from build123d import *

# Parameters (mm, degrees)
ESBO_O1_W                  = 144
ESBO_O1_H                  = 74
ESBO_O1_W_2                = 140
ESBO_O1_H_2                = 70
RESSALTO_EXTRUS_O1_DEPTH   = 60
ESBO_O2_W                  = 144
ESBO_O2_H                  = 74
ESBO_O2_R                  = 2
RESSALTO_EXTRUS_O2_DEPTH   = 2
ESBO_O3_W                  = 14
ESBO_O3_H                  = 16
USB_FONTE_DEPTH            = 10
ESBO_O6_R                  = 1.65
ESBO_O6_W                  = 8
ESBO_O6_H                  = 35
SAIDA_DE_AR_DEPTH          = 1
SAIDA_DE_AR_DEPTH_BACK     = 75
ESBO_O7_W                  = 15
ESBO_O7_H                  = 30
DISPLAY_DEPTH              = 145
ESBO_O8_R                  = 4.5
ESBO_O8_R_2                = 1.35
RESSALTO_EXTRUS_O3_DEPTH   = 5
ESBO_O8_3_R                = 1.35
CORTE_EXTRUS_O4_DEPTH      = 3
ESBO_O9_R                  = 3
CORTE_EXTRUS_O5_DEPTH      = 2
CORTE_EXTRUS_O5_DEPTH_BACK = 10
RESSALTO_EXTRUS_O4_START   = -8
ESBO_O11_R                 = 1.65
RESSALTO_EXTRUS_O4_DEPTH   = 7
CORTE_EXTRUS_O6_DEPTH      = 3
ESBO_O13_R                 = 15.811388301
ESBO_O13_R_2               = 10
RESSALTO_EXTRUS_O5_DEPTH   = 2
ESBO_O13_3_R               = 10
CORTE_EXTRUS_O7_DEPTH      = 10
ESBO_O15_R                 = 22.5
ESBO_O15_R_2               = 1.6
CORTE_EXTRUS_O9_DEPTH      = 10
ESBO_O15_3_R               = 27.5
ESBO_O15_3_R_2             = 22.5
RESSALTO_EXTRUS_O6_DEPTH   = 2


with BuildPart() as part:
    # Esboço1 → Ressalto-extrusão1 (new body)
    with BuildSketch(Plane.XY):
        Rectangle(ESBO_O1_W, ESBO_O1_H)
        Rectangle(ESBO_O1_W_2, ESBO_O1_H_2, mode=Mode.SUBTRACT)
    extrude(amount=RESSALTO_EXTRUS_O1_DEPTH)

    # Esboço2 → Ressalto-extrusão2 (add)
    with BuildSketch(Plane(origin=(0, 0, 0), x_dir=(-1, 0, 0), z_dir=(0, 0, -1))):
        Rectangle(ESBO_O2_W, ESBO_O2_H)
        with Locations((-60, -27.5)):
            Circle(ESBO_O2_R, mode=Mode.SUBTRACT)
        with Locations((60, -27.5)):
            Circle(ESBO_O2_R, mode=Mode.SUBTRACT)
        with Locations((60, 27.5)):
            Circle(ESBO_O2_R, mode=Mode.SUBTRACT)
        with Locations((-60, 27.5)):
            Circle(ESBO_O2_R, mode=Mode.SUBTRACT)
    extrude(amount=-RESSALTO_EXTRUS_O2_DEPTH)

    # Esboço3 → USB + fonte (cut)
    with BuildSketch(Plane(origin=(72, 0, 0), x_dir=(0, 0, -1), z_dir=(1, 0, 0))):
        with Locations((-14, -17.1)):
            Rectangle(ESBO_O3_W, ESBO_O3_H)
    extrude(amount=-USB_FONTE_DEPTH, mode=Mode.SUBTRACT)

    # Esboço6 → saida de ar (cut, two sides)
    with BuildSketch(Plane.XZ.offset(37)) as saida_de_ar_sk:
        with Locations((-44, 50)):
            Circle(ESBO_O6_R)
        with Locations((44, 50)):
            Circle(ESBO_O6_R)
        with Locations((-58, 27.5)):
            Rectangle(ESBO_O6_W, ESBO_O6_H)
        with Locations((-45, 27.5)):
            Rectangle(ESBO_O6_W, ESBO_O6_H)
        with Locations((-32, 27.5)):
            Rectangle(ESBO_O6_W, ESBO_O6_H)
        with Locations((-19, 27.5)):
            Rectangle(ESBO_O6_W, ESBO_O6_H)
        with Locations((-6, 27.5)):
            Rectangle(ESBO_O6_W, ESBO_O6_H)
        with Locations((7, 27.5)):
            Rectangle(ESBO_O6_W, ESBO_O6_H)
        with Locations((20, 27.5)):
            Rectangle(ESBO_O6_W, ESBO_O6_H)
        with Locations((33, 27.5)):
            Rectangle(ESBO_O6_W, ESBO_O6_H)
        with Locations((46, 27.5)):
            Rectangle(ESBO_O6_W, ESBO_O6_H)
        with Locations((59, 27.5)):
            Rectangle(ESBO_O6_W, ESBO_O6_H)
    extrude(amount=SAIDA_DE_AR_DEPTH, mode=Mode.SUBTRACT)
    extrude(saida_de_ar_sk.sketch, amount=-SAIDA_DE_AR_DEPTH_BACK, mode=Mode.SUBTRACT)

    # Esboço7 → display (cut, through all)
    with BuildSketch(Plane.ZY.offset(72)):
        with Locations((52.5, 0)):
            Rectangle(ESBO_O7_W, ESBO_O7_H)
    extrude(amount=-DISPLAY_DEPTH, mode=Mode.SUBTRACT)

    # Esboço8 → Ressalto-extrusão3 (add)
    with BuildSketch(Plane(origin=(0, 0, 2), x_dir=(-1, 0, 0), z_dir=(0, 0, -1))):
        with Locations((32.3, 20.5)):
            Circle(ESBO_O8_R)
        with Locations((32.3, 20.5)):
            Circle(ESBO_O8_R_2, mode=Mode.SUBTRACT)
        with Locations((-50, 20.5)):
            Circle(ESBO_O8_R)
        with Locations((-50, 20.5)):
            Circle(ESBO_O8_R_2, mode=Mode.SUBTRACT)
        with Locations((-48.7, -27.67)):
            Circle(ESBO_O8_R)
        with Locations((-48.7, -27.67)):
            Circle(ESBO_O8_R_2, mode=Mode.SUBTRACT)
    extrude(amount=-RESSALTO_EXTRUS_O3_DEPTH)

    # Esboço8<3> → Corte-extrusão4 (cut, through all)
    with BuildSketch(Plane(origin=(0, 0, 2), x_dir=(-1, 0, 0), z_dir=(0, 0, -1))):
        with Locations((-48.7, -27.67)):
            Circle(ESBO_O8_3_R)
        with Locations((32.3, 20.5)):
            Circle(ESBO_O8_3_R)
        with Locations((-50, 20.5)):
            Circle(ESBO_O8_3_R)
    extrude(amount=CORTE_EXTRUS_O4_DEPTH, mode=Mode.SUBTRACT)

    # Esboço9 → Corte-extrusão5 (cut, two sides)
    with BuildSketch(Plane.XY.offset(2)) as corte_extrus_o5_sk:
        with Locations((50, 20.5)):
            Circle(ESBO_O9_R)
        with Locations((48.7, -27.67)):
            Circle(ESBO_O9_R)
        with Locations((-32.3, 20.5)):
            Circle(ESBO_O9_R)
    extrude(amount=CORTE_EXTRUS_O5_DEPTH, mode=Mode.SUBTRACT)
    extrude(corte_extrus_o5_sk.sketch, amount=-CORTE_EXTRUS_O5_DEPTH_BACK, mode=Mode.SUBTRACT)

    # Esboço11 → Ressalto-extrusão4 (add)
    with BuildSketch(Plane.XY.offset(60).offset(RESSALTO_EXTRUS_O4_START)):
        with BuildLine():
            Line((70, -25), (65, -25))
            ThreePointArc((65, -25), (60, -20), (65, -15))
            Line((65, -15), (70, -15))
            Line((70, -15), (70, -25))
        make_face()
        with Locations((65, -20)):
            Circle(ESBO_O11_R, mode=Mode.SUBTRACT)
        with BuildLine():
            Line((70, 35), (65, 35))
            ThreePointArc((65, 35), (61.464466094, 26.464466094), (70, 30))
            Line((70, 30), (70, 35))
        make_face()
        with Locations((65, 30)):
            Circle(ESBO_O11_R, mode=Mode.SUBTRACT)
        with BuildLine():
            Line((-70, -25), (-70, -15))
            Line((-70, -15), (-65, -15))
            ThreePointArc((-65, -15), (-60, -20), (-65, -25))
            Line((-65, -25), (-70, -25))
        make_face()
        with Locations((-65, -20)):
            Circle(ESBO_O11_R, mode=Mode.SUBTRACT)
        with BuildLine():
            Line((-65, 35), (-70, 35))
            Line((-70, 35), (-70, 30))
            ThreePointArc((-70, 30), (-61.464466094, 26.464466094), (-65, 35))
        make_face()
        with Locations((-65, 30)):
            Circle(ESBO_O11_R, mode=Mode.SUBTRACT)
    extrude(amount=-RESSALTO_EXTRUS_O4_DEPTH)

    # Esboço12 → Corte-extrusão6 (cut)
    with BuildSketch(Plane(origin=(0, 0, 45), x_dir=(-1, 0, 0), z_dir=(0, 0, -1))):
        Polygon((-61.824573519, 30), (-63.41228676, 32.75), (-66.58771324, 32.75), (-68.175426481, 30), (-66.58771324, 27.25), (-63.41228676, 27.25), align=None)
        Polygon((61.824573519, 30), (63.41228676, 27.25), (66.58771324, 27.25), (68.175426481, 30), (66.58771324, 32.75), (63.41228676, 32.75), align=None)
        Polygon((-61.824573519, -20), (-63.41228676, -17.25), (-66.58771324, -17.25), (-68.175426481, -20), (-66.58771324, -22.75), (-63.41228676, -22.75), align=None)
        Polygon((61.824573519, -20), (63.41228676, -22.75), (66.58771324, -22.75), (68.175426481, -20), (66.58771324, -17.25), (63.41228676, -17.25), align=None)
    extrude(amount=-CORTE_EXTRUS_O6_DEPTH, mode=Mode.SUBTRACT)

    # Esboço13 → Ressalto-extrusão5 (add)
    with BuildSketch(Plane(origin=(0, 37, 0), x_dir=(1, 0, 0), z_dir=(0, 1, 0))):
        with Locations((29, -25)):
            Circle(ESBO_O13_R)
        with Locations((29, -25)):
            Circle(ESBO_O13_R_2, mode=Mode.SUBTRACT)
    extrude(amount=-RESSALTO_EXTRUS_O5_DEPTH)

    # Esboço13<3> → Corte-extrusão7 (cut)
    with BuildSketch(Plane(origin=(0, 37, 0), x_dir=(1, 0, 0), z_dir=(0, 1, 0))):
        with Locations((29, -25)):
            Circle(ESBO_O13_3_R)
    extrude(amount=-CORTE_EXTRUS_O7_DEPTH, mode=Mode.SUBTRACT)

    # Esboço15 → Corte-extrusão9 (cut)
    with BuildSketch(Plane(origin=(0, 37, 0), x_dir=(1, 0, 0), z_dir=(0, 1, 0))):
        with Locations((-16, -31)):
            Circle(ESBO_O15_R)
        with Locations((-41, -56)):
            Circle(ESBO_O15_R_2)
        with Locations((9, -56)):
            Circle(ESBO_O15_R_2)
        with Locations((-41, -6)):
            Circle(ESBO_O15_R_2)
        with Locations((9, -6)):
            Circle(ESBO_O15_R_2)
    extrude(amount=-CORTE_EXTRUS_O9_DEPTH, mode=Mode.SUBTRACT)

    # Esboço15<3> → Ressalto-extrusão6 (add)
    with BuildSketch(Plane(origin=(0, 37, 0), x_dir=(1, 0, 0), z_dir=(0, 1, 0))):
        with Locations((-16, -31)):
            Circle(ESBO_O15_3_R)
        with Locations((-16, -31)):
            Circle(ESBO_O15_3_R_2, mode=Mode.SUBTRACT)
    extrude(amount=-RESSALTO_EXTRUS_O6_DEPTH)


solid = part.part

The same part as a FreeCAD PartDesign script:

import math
import FreeCAD as App
import Part
import Sketcher

V = App.Vector
Q = App.Units.Quantity

doc = App.newDocument("Part")
body = doc.addObject("PartDesign::Body", "Body")

# Sketch on XY plane
sketch1 = body.newObject("Sketcher::SketchObject", "Sketch")
sketch1.AttachmentSupport = (doc.getObject("XY_Plane"), [""])
sketch1.MapMode = "FlatFace"
sketch1.addGeometry(Part.LineSegment(V(-72, 37, 0), V(-72, -37, 0)), False)
sketch1.addGeometry(Part.LineSegment(V(-72, -37, 0), V(72, -37, 0)), False)
sketch1.addGeometry(Part.LineSegment(V(72, -37, 0), V(72, 37, 0)), False)
sketch1.addGeometry(Part.LineSegment(V(72, 37, 0), V(-72, 37, 0)), False)
sketch1.addGeometry(Part.LineSegment(V(70, -35, 0), V(-70, -35, 0)), False)
sketch1.addGeometry(Part.LineSegment(V(-70, -35, 0), V(-70, 35, 0)), False)
sketch1.addGeometry(Part.LineSegment(V(-70, 35, 0), V(70, 35, 0)), False)
sketch1.addGeometry(Part.LineSegment(V(70, 35, 0), V(70, -35, 0)), False)
sketch1.addConstraint(Sketcher.Constraint("Coincident", 0, 2, 1, 1))
sketch1.addConstraint(Sketcher.Constraint("Coincident", 1, 2, 2, 1))
sketch1.addConstraint(Sketcher.Constraint("Coincident", 2, 2, 3, 1))
sketch1.addConstraint(Sketcher.Constraint("Coincident", 3, 2, 0, 1))
sketch1.addConstraint(Sketcher.Constraint("Coincident", 4, 2, 5, 1))
sketch1.addConstraint(Sketcher.Constraint("Coincident", 5, 2, 6, 1))
sketch1.addConstraint(Sketcher.Constraint("Coincident", 6, 2, 7, 1))
sketch1.addConstraint(Sketcher.Constraint("Coincident", 7, 2, 4, 1))
sketch1.addConstraint(Sketcher.Constraint("Vertical", 0))
sketch1.addConstraint(Sketcher.Constraint("Horizontal", 1))
sketch1.addConstraint(Sketcher.Constraint("Vertical", 2))
sketch1.addConstraint(Sketcher.Constraint("Horizontal", 3))
sketch1.addConstraint(Sketcher.Constraint("Horizontal", 4))
sketch1.addConstraint(Sketcher.Constraint("Vertical", 5))
sketch1.addConstraint(Sketcher.Constraint("Horizontal", 6))
sketch1.addConstraint(Sketcher.Constraint("Vertical", 7))
sketch1.addConstraint(Sketcher.Constraint("Symmetric", 0, 2, 2, 2, -1, 1))
sketch1.addConstraint(Sketcher.Constraint("Symmetric", 4, 2, 6, 2, -1, 1))
sketch1.addConstraint(Sketcher.Constraint("DistanceX", 1, 1, 1, 2, 144.0))
sketch1.addConstraint(Sketcher.Constraint("DistanceX", 4, 2, 4, 1, 140.0))
sketch1.addConstraint(Sketcher.Constraint("DistanceY", 0, 2, 0, 1, 74.0))
sketch1.addConstraint(Sketcher.Constraint("DistanceY", 5, 1, 5, 2, 70.0))
pad1 = body.newObject("PartDesign::Pad", "Pad")
pad1.Profile = sketch1
pad1.Length = 60

# Sketch on XY plane
sketch2 = body.newObject("Sketcher::SketchObject", "Sketch001")
sketch2.AttachmentSupport = (doc.getObject("XY_Plane"), [""])
sketch2.MapMode = "FlatFace"
sketch2.addGeometry(Part.LineSegment(V(72, 37, 0), V(72, -37, 0)), False)
sketch2.addGeometry(Part.LineSegment(V(72, -37, 0), V(-72, -37, 0)), False)
sketch2.addGeometry(Part.LineSegment(V(-72, -37, 0), V(-72, 37, 0)), False)
sketch2.addGeometry(Part.LineSegment(V(-72, 37, 0), V(72, 37, 0)), False)
sketch2.addGeometry(Part.Circle(V(60, -27.5, 0), V(0, 0, 1), 2), False)
sketch2.addGeometry(Part.Circle(V(-60, -27.5, 0), V(0, 0, 1), 2), False)
sketch2.addGeometry(Part.Circle(V(60, 27.5, 0), V(0, 0, 1), 2), False)
sketch2.addGeometry(Part.Circle(V(-60, 27.5, 0), V(0, 0, 1), 2), False)
sketch2.addConstraint(Sketcher.Constraint("Coincident", 0, 2, 1, 1))
sketch2.addConstraint(Sketcher.Constraint("Coincident", 1, 2, 2, 1))
sketch2.addConstraint(Sketcher.Constraint("Coincident", 2, 2, 3, 1))
sketch2.addConstraint(Sketcher.Constraint("Coincident", 3, 2, 0, 1))
sketch2.addConstraint(Sketcher.Constraint("Vertical", 0))
sketch2.addConstraint(Sketcher.Constraint("Horizontal", 1))
sketch2.addConstraint(Sketcher.Constraint("Vertical", 2))
sketch2.addConstraint(Sketcher.Constraint("Horizontal", 3))
sketch2.addConstraint(Sketcher.Constraint("Equal", 4, 5))
sketch2.addConstraint(Sketcher.Constraint("Equal", 5, 6))
sketch2.addConstraint(Sketcher.Constraint("Equal", 6, 7))
sketch2.addConstraint(Sketcher.Constraint("Symmetric", 5, 3, 6, 3, -1, 1))
sketch2.addConstraint(Sketcher.Constraint("Symmetric", 4, 3, 7, 3, -1, 1))
sketch2.addConstraint(Sketcher.Constraint("Symmetric", 0, 2, 2, 2, -1, 1))
sketch2.addConstraint(Sketcher.Constraint("Symmetric", 4, 3, 5, 3, -2))
sketch2.addConstraint(Sketcher.Constraint("Diameter", 4, 4.0))
sketch2.addConstraint(Sketcher.Constraint("DistanceX", 1, 2, 1, 1, 144.0))
sketch2.addConstraint(Sketcher.Constraint("DistanceY", 0, 2, 0, 1, 74.0))
sketch2.addConstraint(Sketcher.Constraint("DistanceX", -1, 1, 4, 3, 60.0))
sketch2.addConstraint(Sketcher.Constraint("DistanceY", 4, 3, 6, 3, 55.0))
pad2 = body.newObject("PartDesign::Pad", "Pad001")
pad2.Profile = sketch2
pad2.Length = 2

# Sketch on YZ plane
sketch3 = body.newObject("Sketcher::SketchObject", "Sketch002")
sketch3.AttachmentSupport = (doc.getObject("YZ_Plane"), [""])
sketch3.MapMode = "FlatFace"
sketch3.AttachmentOffset = App.Placement(V(0, 0, 72), App.Rotation())
sketch3.addGeometry(Part.LineSegment(V(-9, 21, 0), V(-25, 21, 0)), False)
sketch3.addGeometry(Part.LineSegment(V(-25, 21, 0), V(-25, 7, 0)), False)
sketch3.addGeometry(Part.LineSegment(V(-25, 7, 0), V(-9, 7, 0)), False)
sketch3.addGeometry(Part.LineSegment(V(-9, 7, 0), V(-9, 21, 0)), False)
sketch3.addConstraint(Sketcher.Constraint("Coincident", 0, 2, 1, 1))
sketch3.addConstraint(Sketcher.Constraint("Coincident", 1, 2, 2, 1))
sketch3.addConstraint(Sketcher.Constraint("Coincident", 2, 2, 3, 1))
sketch3.addConstraint(Sketcher.Constraint("Coincident", 3, 2, 0, 1))
sketch3.addConstraint(Sketcher.Constraint("Horizontal", 0))
sketch3.addConstraint(Sketcher.Constraint("Vertical", 1))
sketch3.addConstraint(Sketcher.Constraint("Horizontal", 2))
sketch3.addConstraint(Sketcher.Constraint("Vertical", 3))
sketch3.addConstraint(Sketcher.Constraint("DistanceX", 0, 2, 0, 1, 16.0))
sketch3.addConstraint(Sketcher.Constraint("DistanceY", 1, 2, 1, 1, 14.0))
sketch3.addConstraint(Sketcher.Constraint("DistanceY", -1, 1, 0, 2, 21.0))
sketch3.addConstraint(Sketcher.Constraint("DistanceX", 0, 2, -1, 1, 25.1))
pocket1 = body.newObject("PartDesign::Pocket", "Pocket")
pocket1.Profile = sketch3
pocket1.Length = 10

# Sketch on XZ plane
sketch4 = body.newObject("Sketcher::SketchObject", "Sketch003")
sketch4.AttachmentSupport = (doc.getObject("XZ_Plane"), [""])
sketch4.MapMode = "FlatFace"
sketch4.AttachmentOffset = App.Placement(V(0, 0, 37), App.Rotation())
sketch4.addGeometry(Part.Circle(V(-44, 50, 0), V(0, 0, 1), 1.6), False)
sketch4.addGeometry(Part.Circle(V(44, 50, 0), V(0, 0, 1), 1.6), False)
sketch4.addGeometry(Part.LineSegment(V(-62, 45, 0), V(-62, 10, 0)), False)
sketch4.addGeometry(Part.LineSegment(V(-62, 10, 0), V(-54, 10, 0)), False)
sketch4.addGeometry(Part.LineSegment(V(-54, 10, 0), V(-54, 45, 0)), False)
sketch4.addGeometry(Part.LineSegment(V(-54, 45, 0), V(-62, 45, 0)), False)
sketch4.addGeometry(Part.LineSegment(V(-49, 45, 0), V(-49, 10, 0)), False)
sketch4.addGeometry(Part.LineSegment(V(-49, 10, 0), V(-41, 10, 0)), False)
sketch4.addGeometry(Part.LineSegment(V(-41, 10, 0), V(-41, 45, 0)), False)
sketch4.addGeometry(Part.LineSegment(V(-41, 45, 0), V(-49, 45, 0)), False)
sketch4.addGeometry(Part.LineSegment(V(-36, 45, 0), V(-36, 10, 0)), False)
sketch4.addGeometry(Part.LineSegment(V(-36, 10, 0), V(-28, 10, 0)), False)
sketch4.addGeometry(Part.LineSegment(V(-28, 10, 0), V(-28, 45, 0)), False)
sketch4.addGeometry(Part.LineSegment(V(-28, 45, 0), V(-36, 45, 0)), False)
sketch4.addGeometry(Part.LineSegment(V(-23, 45, 0), V(-23, 10, 0)), False)
sketch4.addGeometry(Part.LineSegment(V(-23, 10, 0), V(-15, 10, 0)), False)
sketch4.addGeometry(Part.LineSegment(V(-15, 10, 0), V(-15, 45, 0)), False)
sketch4.addGeometry(Part.LineSegment(V(-15, 45, 0), V(-23, 45, 0)), False)
sketch4.addGeometry(Part.LineSegment(V(-10, 45, 0), V(-10, 10, 0)), False)
sketch4.addGeometry(Part.LineSegment(V(-10, 10, 0), V(-2, 10, 0)), False)
sketch4.addGeometry(Part.LineSegment(V(-2, 10, 0), V(-2, 45, 0)), False)
sketch4.addGeometry(Part.LineSegment(V(-2, 45, 0), V(-10, 45, 0)), False)
sketch4.addGeometry(Part.LineSegment(V(3, 45, 0), V(3, 10, 0)), False)
sketch4.addGeometry(Part.LineSegment(V(3, 10, 0), V(11, 10, 0)), False)
sketch4.addGeometry(Part.LineSegment(V(11, 10, 0), V(11, 45, 0)), False)
sketch4.addGeometry(Part.LineSegment(V(11, 45, 0), V(3, 45, 0)), False)
sketch4.addGeometry(Part.LineSegment(V(16, 45, 0), V(16, 10, 0)), False)
sketch4.addGeometry(Part.LineSegment(V(16, 10, 0), V(24, 10, 0)), False)
sketch4.addGeometry(Part.LineSegment(V(24, 10, 0), V(24, 45, 0)), False)
sketch4.addGeometry(Part.LineSegment(V(24, 45, 0), V(16, 45, 0)), False)
sketch4.addGeometry(Part.LineSegment(V(29, 45, 0), V(29, 10, 0)), False)
sketch4.addGeometry(Part.LineSegment(V(29, 10, 0), V(37, 10, 0)), False)
sketch4.addGeometry(Part.LineSegment(V(37, 10, 0), V(37, 45, 0)), False)
sketch4.addGeometry(Part.LineSegment(V(37, 45, 0), V(29, 45, 0)), False)
sketch4.addGeometry(Part.LineSegment(V(42, 45, 0), V(42, 10, 0)), False)
sketch4.addGeometry(Part.LineSegment(V(42, 10, 0), V(50, 10, 0)), False)
sketch4.addGeometry(Part.LineSegment(V(50, 10, 0), V(50, 45, 0)), False)
sketch4.addGeometry(Part.LineSegment(V(50, 45, 0), V(42, 45, 0)), False)
sketch4.addGeometry(Part.LineSegment(V(55, 45, 0), V(55, 10, 0)), False)
sketch4.addGeometry(Part.LineSegment(V(55, 10, 0), V(63, 10, 0)), False)
sketch4.addGeometry(Part.LineSegment(V(63, 10, 0), V(63, 45, 0)), False)
sketch4.addGeometry(Part.LineSegment(V(63, 45, 0), V(55, 45, 0)), False)
sketch4.addConstraint(Sketcher.Constraint("Coincident", 2, 2, 3, 1))
sketch4.addConstraint(Sketcher.Constraint("Coincident", 3, 2, 4, 1))
sketch4.addConstraint(Sketcher.Constraint("Coincident", 4, 2, 5, 1))
sketch4.addConstraint(Sketcher.Constraint("Coincident", 5, 2, 2, 1))
sketch4.addConstraint(Sketcher.Constraint("Coincident", 6, 2, 7, 1))
sketch4.addConstraint(Sketcher.Constraint("Coincident", 7, 2, 8, 1))
sketch4.addConstraint(Sketcher.Constraint("Coincident", 8, 2, 9, 1))
sketch4.addConstraint(Sketcher.Constraint("Coincident", 9, 2, 6, 1))
sketch4.addConstraint(Sketcher.Constraint("Coincident", 10, 2, 11, 1))
sketch4.addConstraint(Sketcher.Constraint("Coincident", 11, 2, 12, 1))
sketch4.addConstraint(Sketcher.Constraint("Coincident", 12, 2, 13, 1))
sketch4.addConstraint(Sketcher.Constraint("Coincident", 13, 2, 10, 1))
sketch4.addConstraint(Sketcher.Constraint("Coincident", 14, 2, 15, 1))
sketch4.addConstraint(Sketcher.Constraint("Coincident", 15, 2, 16, 1))
sketch4.addConstraint(Sketcher.Constraint("Coincident", 16, 2, 17, 1))
sketch4.addConstraint(Sketcher.Constraint("Coincident", 17, 2, 14, 1))
sketch4.addConstraint(Sketcher.Constraint("Coincident", 18, 2, 19, 1))
sketch4.addConstraint(Sketcher.Constraint("Coincident", 19, 2, 20, 1))
sketch4.addConstraint(Sketcher.Constraint("Coincident", 20, 2, 21, 1))
sketch4.addConstraint(Sketcher.Constraint("Coincident", 21, 2, 18, 1))
sketch4.addConstraint(Sketcher.Constraint("Coincident", 22, 2, 23, 1))
sketch4.addConstraint(Sketcher.Constraint("Coincident", 23, 2, 24, 1))
sketch4.addConstraint(Sketcher.Constraint("Coincident", 24, 2, 25, 1))
sketch4.addConstraint(Sketcher.Constraint("Coincident", 25, 2, 22, 1))
sketch4.addConstraint(Sketcher.Constraint("Coincident", 26, 2, 27, 1))
sketch4.addConstraint(Sketcher.Constraint("Coincident", 27, 2, 28, 1))
sketch4.addConstraint(Sketcher.Constraint("Coincident", 28, 2, 29, 1))
sketch4.addConstraint(Sketcher.Constraint("Coincident", 29, 2, 26, 1))
sketch4.addConstraint(Sketcher.Constraint("Coincident", 30, 2, 31, 1))
sketch4.addConstraint(Sketcher.Constraint("Coincident", 31, 2, 32, 1))
sketch4.addConstraint(Sketcher.Constraint("Coincident", 32, 2, 33, 1))
sketch4.addConstraint(Sketcher.Constraint("Coincident", 33, 2, 30, 1))
sketch4.addConstraint(Sketcher.Constraint("Coincident", 34, 2, 35, 1))
sketch4.addConstraint(Sketcher.Constraint("Coincident", 35, 2, 36, 1))
sketch4.addConstraint(Sketcher.Constraint("Coincident", 36, 2, 37, 1))
sketch4.addConstraint(Sketcher.Constraint("Coincident", 37, 2, 34, 1))
sketch4.addConstraint(Sketcher.Constraint("Coincident", 38, 2, 39, 1))
sketch4.addConstraint(Sketcher.Constraint("Coincident", 39, 2, 40, 1))
sketch4.addConstraint(Sketcher.Constraint("Coincident", 40, 2, 41, 1))
sketch4.addConstraint(Sketcher.Constraint("Coincident", 41, 2, 38, 1))
sketch4.addConstraint(Sketcher.Constraint("Vertical", 2))
sketch4.addConstraint(Sketcher.Constraint("Horizontal", 3))
sketch4.addConstraint(Sketcher.Constraint("Vertical", 4))
sketch4.addConstraint(Sketcher.Constraint("Horizontal", 5))
sketch4.addConstraint(Sketcher.Constraint("Vertical", 6))
sketch4.addConstraint(Sketcher.Constraint("Horizontal", 7))
sketch4.addConstraint(Sketcher.Constraint("Vertical", 8))
sketch4.addConstraint(Sketcher.Constraint("Horizontal", 9))
sketch4.addConstraint(Sketcher.Constraint("Vertical", 10))
sketch4.addConstraint(Sketcher.Constraint("Horizontal", 11))
sketch4.addConstraint(Sketcher.Constraint("Vertical", 12))
sketch4.addConstraint(Sketcher.Constraint("Horizontal", 13))
sketch4.addConstraint(Sketcher.Constraint("Vertical", 14))
sketch4.addConstraint(Sketcher.Constraint("Horizontal", 15))
sketch4.addConstraint(Sketcher.Constraint("Vertical", 16))
sketch4.addConstraint(Sketcher.Constraint("Horizontal", 17))
sketch4.addConstraint(Sketcher.Constraint("Vertical", 18))
sketch4.addConstraint(Sketcher.Constraint("Horizontal", 19))
sketch4.addConstraint(Sketcher.Constraint("Vertical", 20))
sketch4.addConstraint(Sketcher.Constraint("Horizontal", 21))
sketch4.addConstraint(Sketcher.Constraint("Vertical", 22))
sketch4.addConstraint(Sketcher.Constraint("Horizontal", 23))
sketch4.addConstraint(Sketcher.Constraint("Vertical", 24))
sketch4.addConstraint(Sketcher.Constraint("Horizontal", 25))
sketch4.addConstraint(Sketcher.Constraint("Vertical", 26))
sketch4.addConstraint(Sketcher.Constraint("Horizontal", 27))
sketch4.addConstraint(Sketcher.Constraint("Vertical", 28))
sketch4.addConstraint(Sketcher.Constraint("Horizontal", 29))
sketch4.addConstraint(Sketcher.Constraint("Vertical", 30))
sketch4.addConstraint(Sketcher.Constraint("Horizontal", 31))
sketch4.addConstraint(Sketcher.Constraint("Vertical", 32))
sketch4.addConstraint(Sketcher.Constraint("Horizontal", 33))
sketch4.addConstraint(Sketcher.Constraint("Vertical", 34))
sketch4.addConstraint(Sketcher.Constraint("Horizontal", 35))
sketch4.addConstraint(Sketcher.Constraint("Vertical", 36))
sketch4.addConstraint(Sketcher.Constraint("Horizontal", 37))
sketch4.addConstraint(Sketcher.Constraint("Vertical", 38))
sketch4.addConstraint(Sketcher.Constraint("Horizontal", 39))
sketch4.addConstraint(Sketcher.Constraint("Vertical", 40))
sketch4.addConstraint(Sketcher.Constraint("Horizontal", 41))
sketch4.addConstraint(Sketcher.Constraint("Equal", 0, 1))
sketch4.addConstraint(Sketcher.Constraint("Symmetric", 0, 3, 1, 3, -2))
sketch4.addConstraint(Sketcher.Constraint("Horizontal", 3, 2, 6, 2))
sketch4.addConstraint(Sketcher.Constraint("Horizontal", 5, 2, 8, 2))
sketch4.addConstraint(Sketcher.Constraint("Horizontal", 7, 2, 10, 2))
sketch4.addConstraint(Sketcher.Constraint("Horizontal", 9, 2, 12, 2))
sketch4.addConstraint(Sketcher.Constraint("Horizontal", 11, 2, 14, 2))
sketch4.addConstraint(Sketcher.Constraint("Horizontal", 13, 2, 16, 2))
sketch4.addConstraint(Sketcher.Constraint("Horizontal", 15, 2, 18, 2))
sketch4.addConstraint(Sketcher.Constraint("Horizontal", 17, 2, 20, 2))
sketch4.addConstraint(Sketcher.Constraint("Horizontal", 19, 2, 22, 2))
sketch4.addConstraint(Sketcher.Constraint("Horizontal", 21, 2, 24, 2))
sketch4.addConstraint(Sketcher.Constraint("Horizontal", 23, 2, 26, 2))
sketch4.addConstraint(Sketcher.Constraint("Horizontal", 25, 2, 28, 2))
sketch4.addConstraint(Sketcher.Constraint("Horizontal", 27, 2, 30, 2))
sketch4.addConstraint(Sketcher.Constraint("Horizontal", 29, 2, 32, 2))
sketch4.addConstraint(Sketcher.Constraint("Horizontal", 31, 2, 34, 2))
sketch4.addConstraint(Sketcher.Constraint("Horizontal", 33, 2, 36, 2))
sketch4.addConstraint(Sketcher.Constraint("Horizontal", 35, 2, 38, 2))
sketch4.addConstraint(Sketcher.Constraint("Horizontal", 37, 2, 40, 2))
sketch4.addConstraint(Sketcher.Constraint("Equal", 5, 7))
sketch4.addConstraint(Sketcher.Constraint("Equal", 9, 11))
sketch4.addConstraint(Sketcher.Constraint("Equal", 13, 15))
sketch4.addConstraint(Sketcher.Constraint("Equal", 17, 19))
sketch4.addConstraint(Sketcher.Constraint("Equal", 21, 23))
sketch4.addConstraint(Sketcher.Constraint("Equal", 25, 27))
sketch4.addConstraint(Sketcher.Constraint("Equal", 29, 31))
sketch4.addConstraint(Sketcher.Constraint("Equal", 33, 35))
sketch4.addConstraint(Sketcher.Constraint("Equal", 37, 39))
sketch4.addConstraint(Sketcher.Constraint("Diameter", 0, 3.3))
sketch4.addConstraint(Sketcher.Constraint("DistanceX", 3, 1, 3, 2, 8.0))
sketch4.addConstraint(Sketcher.Constraint("DistanceY", 2, 2, 2, 1, 35.0))
sketch4.addConstraint(Sketcher.Constraint("DistanceX", 0, 3, -1, 1, 44.0))
sketch4.addConstraint(Sketcher.Constraint("DistanceY", -1, 1, 0, 3, 50.0))
sketch4.addConstraint(Sketcher.Constraint("DistanceX", 2, 2, -1, 1, 62.0))
sketch4.addConstraint(Sketcher.Constraint("DistanceY", -1, 1, 2, 2, 10.0))
sketch4.addConstraint(Sketcher.Constraint("DistanceX", 6, 2, -1, 1, 49.0))
sketch4.addConstraint(Sketcher.Constraint("DistanceX", 10, 2, -1, 1, 36.0))
sketch4.addConstraint(Sketcher.Constraint("DistanceX", 14, 2, -1, 1, 23.0))
sketch4.addConstraint(Sketcher.Constraint("DistanceX", 18, 2, -1, 1, 10.0))
sketch4.addConstraint(Sketcher.Constraint("DistanceX", -1, 1, 22, 2, 3.0))
sketch4.addConstraint(Sketcher.Constraint("DistanceX", -1, 1, 26, 2, 16.0))
sketch4.addConstraint(Sketcher.Constraint("DistanceX", -1, 1, 30, 2, 29.0))
sketch4.addConstraint(Sketcher.Constraint("DistanceX", -1, 1, 34, 2, 42.0))
sketch4.addConstraint(Sketcher.Constraint("DistanceX", -1, 1, 38, 2, 55.0))
pocket2 = body.newObject("PartDesign::Pocket", "Pocket001")
pocket2.Profile = sketch4
pocket2.Type = "ThroughAll"
pocket2.Midplane = True

# Sketch on YZ plane
sketch5 = body.newObject("Sketcher::SketchObject", "Sketch004")
sketch5.AttachmentSupport = (doc.getObject("YZ_Plane"), [""])
sketch5.MapMode = "FlatFace"
sketch5.AttachmentOffset = App.Placement(V(0, 0, -72), App.Rotation())
sketch5.addGeometry(Part.LineSegment(V(15, 45, 0), V(-15, 45, 0)), False)
sketch5.addGeometry(Part.LineSegment(V(-15, 45, 0), V(-15, 60, 0)), False)
sketch5.addGeometry(Part.LineSegment(V(-15, 60, 0), V(15, 60, 0)), False)
sketch5.addGeometry(Part.LineSegment(V(15, 60, 0), V(15, 45, 0)), False)
sketch5.addConstraint(Sketcher.Constraint("Coincident", 0, 2, 1, 1))
sketch5.addConstraint(Sketcher.Constraint("Coincident", 1, 2, 2, 1))
sketch5.addConstraint(Sketcher.Constraint("Coincident", 2, 2, 3, 1))
sketch5.addConstraint(Sketcher.Constraint("Coincident", 3, 2, 0, 1))
sketch5.addConstraint(Sketcher.Constraint("Horizontal", 0))
sketch5.addConstraint(Sketcher.Constraint("Vertical", 1))
sketch5.addConstraint(Sketcher.Constraint("Horizontal", 2))
sketch5.addConstraint(Sketcher.Constraint("Vertical", 3))
sketch5.addConstraint(Sketcher.Constraint("DistanceX", 0, 2, 0, 1, 30.0))
sketch5.addConstraint(Sketcher.Constraint("DistanceY", 1, 1, 1, 2, 15.0))
sketch5.addConstraint(Sketcher.Constraint("DistanceX", 0, 2, -1, 1, 15.0))
sketch5.addConstraint(Sketcher.Constraint("DistanceY", -1, 1, 0, 2, 45.0))
pocket3 = body.newObject("PartDesign::Pocket", "Pocket002")
pocket3.Profile = sketch5
pocket3.Type = "ThroughAll"
pocket3.Reversed = True

# Sketch on XY plane
sketch6 = body.newObject("Sketcher::SketchObject", "Sketch005")
sketch6.AttachmentSupport = (doc.getObject("XY_Plane"), [""])
sketch6.MapMode = "FlatFace"
sketch6.AttachmentOffset = App.Placement(V(0, 0, 2), App.Rotation())
sketch6.addGeometry(Part.Circle(V(-32.3, 20.5, 0), V(0, 0, 1), 4.5), False)
sketch6.addGeometry(Part.Circle(V(-32.3, 20.5, 0), V(0, 0, 1), 1.4), False)
sketch6.addGeometry(Part.Circle(V(50, 20.5, 0), V(0, 0, 1), 4.5), False)
sketch6.addGeometry(Part.Circle(V(50, 20.5, 0), V(0, 0, 1), 1.4), False)
sketch6.addGeometry(Part.Circle(V(48.7, -27.7, 0), V(0, 0, 1), 4.5), False)
sketch6.addGeometry(Part.Circle(V(48.7, -27.7, 0), V(0, 0, 1), 1.4), False)
sketch6.addConstraint(Sketcher.Constraint("Coincident", 1, 3, 0, 3))
sketch6.addConstraint(Sketcher.Constraint("Coincident", 3, 3, 2, 3))
sketch6.addConstraint(Sketcher.Constraint("Coincident", 5, 3, 4, 3))
sketch6.addConstraint(Sketcher.Constraint("Equal", 0, 2))
sketch6.addConstraint(Sketcher.Constraint("Equal", 1, 3))
sketch6.addConstraint(Sketcher.Constraint("Equal", 2, 4))
sketch6.addConstraint(Sketcher.Constraint("Equal", 3, 5))
sketch6.addConstraint(Sketcher.Constraint("Horizontal", 1, 3, 2, 3))
sketch6.addConstraint(Sketcher.Constraint("Diameter", 0, 9.0))
sketch6.addConstraint(Sketcher.Constraint("Diameter", 1, 2.7))
sketch6.addConstraint(Sketcher.Constraint("DistanceX", -1, 1, 2, 3, 50.0))
sketch6.addConstraint(Sketcher.Constraint("DistanceX", 0, 3, 4, 3, 81.0))
sketch6.addConstraint(Sketcher.Constraint("DistanceX", 0, 3, -1, 1, 32.3))
sketch6.addConstraint(Sketcher.Constraint("DistanceY", -1, 1, 0, 3, 20.5))
sketch6.addConstraint(Sketcher.Constraint("DistanceY", 4, 3, -1, 1, 27.67))
pad3 = body.newObject("PartDesign::Pad", "Pad002")
pad3.Profile = sketch6
pad3.Length = 5

# Sketch on XY plane
sketch7 = body.newObject("Sketcher::SketchObject", "Sketch006")
sketch7.AttachmentSupport = (doc.getObject("XY_Plane"), [""])
sketch7.MapMode = "FlatFace"
sketch7.AttachmentOffset = App.Placement(V(0, 0, 2), App.Rotation())
sketch7.addGeometry(Part.Circle(V(48.7, -27.7, 0), V(0, 0, 1), 1.4), False)
sketch7.addGeometry(Part.Circle(V(-32.3, 20.5, 0), V(0, 0, 1), 1.4), False)
sketch7.addGeometry(Part.Circle(V(50, 20.5, 0), V(0, 0, 1), 1.4), False)
sketch7.addConstraint(Sketcher.Constraint("Equal", 0, 1))
sketch7.addConstraint(Sketcher.Constraint("Equal", 1, 2))
sketch7.addConstraint(Sketcher.Constraint("Horizontal", 1, 3, 2, 3))
sketch7.addConstraint(Sketcher.Constraint("Diameter", 0, 2.7))
sketch7.addConstraint(Sketcher.Constraint("DistanceX", -1, 1, 2, 3, 50.0))
sketch7.addConstraint(Sketcher.Constraint("DistanceX", 1, 3, 0, 3, 81.0))
sketch7.addConstraint(Sketcher.Constraint("DistanceX", -1, 1, 0, 3, 48.7))
sketch7.addConstraint(Sketcher.Constraint("DistanceY", -1, 1, 1, 3, 20.5))
sketch7.addConstraint(Sketcher.Constraint("DistanceY", 0, 3, -1, 1, 27.67))
pocket4 = body.newObject("PartDesign::Pocket", "Pocket003")
pocket4.Profile = sketch7
pocket4.Type = "ThroughAll"

# Sketch on XY plane
sketch8 = body.newObject("Sketcher::SketchObject", "Sketch007")
sketch8.AttachmentSupport = (doc.getObject("XY_Plane"), [""])
sketch8.MapMode = "FlatFace"
sketch8.AttachmentOffset = App.Placement(V(0, 0, 2), App.Rotation())
sketch8.addGeometry(Part.Circle(V(50, 20.5, 0), V(0, 0, 1), 3), False)
sketch8.addGeometry(Part.Circle(V(48.7, -27.7, 0), V(0, 0, 1), 3), False)
sketch8.addGeometry(Part.Circle(V(-32.3, 20.5, 0), V(0, 0, 1), 3), False)
sketch8.addConstraint(Sketcher.Constraint("Equal", 0, 1))
sketch8.addConstraint(Sketcher.Constraint("Equal", 1, 2))
sketch8.addConstraint(Sketcher.Constraint("Horizontal", 0, 3, 2, 3))
sketch8.addConstraint(Sketcher.Constraint("Diameter", 0, 6.0))
sketch8.addConstraint(Sketcher.Constraint("DistanceX", -1, 1, 0, 3, 50.0))
sketch8.addConstraint(Sketcher.Constraint("DistanceX", 2, 3, 1, 3, 81.0))
sketch8.addConstraint(Sketcher.Constraint("DistanceY", -1, 1, 0, 3, 20.5))
sketch8.addConstraint(Sketcher.Constraint("DistanceX", -1, 1, 1, 3, 48.7))
sketch8.addConstraint(Sketcher.Constraint("DistanceY", 1, 3, -1, 1, 27.67))
pocket5 = body.newObject("PartDesign::Pocket", "Pocket004")
pocket5.Profile = sketch8
pocket5.Type = "TwoLengths"
pocket5.Length = 2
pocket5.Length2 = 10
pocket5.Reversed = True

# Sketch on XY plane
sketch9 = body.newObject("Sketcher::SketchObject", "Sketch008")
sketch9.AttachmentSupport = (doc.getObject("XY_Plane"), [""])
sketch9.MapMode = "FlatFace"
sketch9.AttachmentOffset = App.Placement(V(0, 0, 52), App.Rotation())
sketch9.addGeometry(Part.LineSegment(V(65, -25, 0), V(70, -25, 0)), False)
sketch9.addGeometry(Part.LineSegment(V(70, -25, 0), V(70, -15, 0)), False)
sketch9.addGeometry(Part.LineSegment(V(70, -15, 0), V(65, -15, 0)), False)
sketch9.addGeometry(Part.ArcOfCircle(Part.Circle(V(65, -20, 0), V(0, 0, 1), 5), math.radians(90), math.radians(270)), False)
sketch9.addGeometry(Part.Circle(V(65, -20, 0), V(0, 0, 1), 1.6), False)
sketch9.addGeometry(Part.LineSegment(V(70, 35, 0), V(65, 35, 0)), False)
sketch9.addGeometry(Part.ArcOfCircle(Part.Circle(V(65, 30, 0), V(0, 0, 1), 5), math.radians(90), math.radians(360)), False)
sketch9.addGeometry(Part.LineSegment(V(70, 30, 0), V(70, 35, 0)), False)
sketch9.addGeometry(Part.Circle(V(65, 30, 0), V(0, 0, 1), 1.6), False)
sketch9.addGeometry(Part.LineSegment(V(-70, -15, 0), V(-70, -25, 0)), False)
sketch9.addGeometry(Part.LineSegment(V(-70, -25, 0), V(-65, -25, 0)), False)
sketch9.addGeometry(Part.ArcOfCircle(Part.Circle(V(-65, -20, 0), V(0, 0, 1), 5), math.radians(-90), math.radians(90)), False)
sketch9.addGeometry(Part.LineSegment(V(-65, -15, 0), V(-70, -15, 0)), False)
sketch9.addGeometry(Part.Circle(V(-65, -20, 0), V(0, 0, 1), 1.6), False)
sketch9.addGeometry(Part.LineSegment(V(-65, 35, 0), V(-70, 35, 0)), False)
sketch9.addGeometry(Part.LineSegment(V(-70, 35, 0), V(-70, 30, 0)), False)
sketch9.addGeometry(Part.ArcOfCircle(Part.Circle(V(-65, 30, 0), V(0, 0, 1), 5), math.radians(180), math.radians(450)), False)
sketch9.addGeometry(Part.Circle(V(-65, 30, 0), V(0, 0, 1), 1.6), False)
sketch9.addConstraint(Sketcher.Constraint("Coincident", 0, 2, 1, 1))
sketch9.addConstraint(Sketcher.Constraint("Coincident", 1, 2, 2, 1))
sketch9.addConstraint(Sketcher.Constraint("Tangent", 2, 2, 3, 1))
sketch9.addConstraint(Sketcher.Constraint("Tangent", 3, 2, 0, 1))
sketch9.addConstraint(Sketcher.Constraint("Tangent", 5, 2, 6, 1))
sketch9.addConstraint(Sketcher.Constraint("Tangent", 6, 2, 7, 1))
sketch9.addConstraint(Sketcher.Constraint("Coincident", 7, 2, 5, 1))
sketch9.addConstraint(Sketcher.Constraint("Coincident", 9, 2, 10, 1))
sketch9.addConstraint(Sketcher.Constraint("Tangent", 10, 2, 11, 1))
sketch9.addConstraint(Sketcher.Constraint("Tangent", 11, 2, 12, 1))
sketch9.addConstraint(Sketcher.Constraint("Coincident", 12, 2, 9, 1))
sketch9.addConstraint(Sketcher.Constraint("Coincident", 14, 2, 15, 1))
sketch9.addConstraint(Sketcher.Constraint("Tangent", 15, 2, 16, 1))
sketch9.addConstraint(Sketcher.Constraint("Tangent", 16, 2, 14, 1))
sketch9.addConstraint(Sketcher.Constraint("Horizontal", 0))
sketch9.addConstraint(Sketcher.Constraint("Vertical", 1))
sketch9.addConstraint(Sketcher.Constraint("Horizontal", 2))
sketch9.addConstraint(Sketcher.Constraint("Horizontal", 5))
sketch9.addConstraint(Sketcher.Constraint("Vertical", 7))
sketch9.addConstraint(Sketcher.Constraint("Vertical", 9))
sketch9.addConstraint(Sketcher.Constraint("Horizontal", 10))
sketch9.addConstraint(Sketcher.Constraint("Horizontal", 12))
sketch9.addConstraint(Sketcher.Constraint("Horizontal", 14))
sketch9.addConstraint(Sketcher.Constraint("Vertical", 15))
sketch9.addConstraint(Sketcher.Constraint("Coincident", 4, 3, 3, 3))
sketch9.addConstraint(Sketcher.Constraint("Coincident", 8, 3, 6, 3))
sketch9.addConstraint(Sketcher.Constraint("Coincident", 13, 3, 11, 3))
sketch9.addConstraint(Sketcher.Constraint("Coincident", 17, 3, 16, 3))
sketch9.addConstraint(Sketcher.Constraint("Equal", 3, 6))
sketch9.addConstraint(Sketcher.Constraint("Equal", 4, 8))
sketch9.addConstraint(Sketcher.Constraint("Equal", 6, 11))
sketch9.addConstraint(Sketcher.Constraint("Equal", 8, 13))
sketch9.addConstraint(Sketcher.Constraint("Equal", 11, 16))
sketch9.addConstraint(Sketcher.Constraint("Equal", 13, 17))
sketch9.addConstraint(Sketcher.Constraint("Symmetric", 3, 3, 11, 3, -2))
sketch9.addConstraint(Sketcher.Constraint("Symmetric", 6, 3, 16, 3, -2))
sketch9.addConstraint(Sketcher.Constraint("Vertical", 4, 3, 6, 3))
sketch9.addConstraint(Sketcher.Constraint("Vertical", 1, 2, 6, 2))
sketch9.addConstraint(Sketcher.Constraint("Vertical", 12, 2, 14, 2))
sketch9.addConstraint(Sketcher.Constraint("Radius", 3, 5.0))
sketch9.addConstraint(Sketcher.Constraint("Diameter", 4, 3.3))
sketch9.addConstraint(Sketcher.Constraint("DistanceX", -1, 1, 3, 3, 65.0))
sketch9.addConstraint(Sketcher.Constraint("DistanceY", 3, 3, -1, 1, 20.0))
sketch9.addConstraint(Sketcher.Constraint("DistanceY", -1, 1, 6, 3, 30.0))
pad4 = body.newObject("PartDesign::Pad", "Pad003")
pad4.Profile = sketch9
pad4.Length = 7
pad4.Reversed = True

# Sketch on XY plane
sketch10 = body.newObject("Sketcher::SketchObject", "Sketch009")
sketch10.AttachmentSupport = (doc.getObject("XY_Plane"), [""])
sketch10.MapMode = "FlatFace"
sketch10.AttachmentOffset = App.Placement(V(0, 0, 45), App.Rotation())
sketch10.addGeometry(Part.LineSegment(V(61.8, 30, 0), V(63.4, 32.8, 0)), False)
sketch10.addGeometry(Part.LineSegment(V(63.4, 32.8, 0), V(66.6, 32.8, 0)), False)
sketch10.addGeometry(Part.LineSegment(V(66.6, 32.8, 0), V(68.2, 30, 0)), False)
sketch10.addGeometry(Part.LineSegment(V(68.2, 30, 0), V(66.6, 27.2, 0)), False)
sketch10.addGeometry(Part.LineSegment(V(66.6, 27.2, 0), V(63.4, 27.2, 0)), False)
sketch10.addGeometry(Part.LineSegment(V(63.4, 27.2, 0), V(61.8, 30, 0)), False)
sketch10.addGeometry(Part.LineSegment(V(-61.8, 30, 0), V(-63.4, 27.2, 0)), False)
sketch10.addGeometry(Part.LineSegment(V(-63.4, 27.2, 0), V(-66.6, 27.2, 0)), False)
sketch10.addGeometry(Part.LineSegment(V(-66.6, 27.2, 0), V(-68.2, 30, 0)), False)
sketch10.addGeometry(Part.LineSegment(V(-68.2, 30, 0), V(-66.6, 32.8, 0)), False)
sketch10.addGeometry(Part.LineSegment(V(-66.6, 32.8, 0), V(-63.4, 32.8, 0)), False)
sketch10.addGeometry(Part.LineSegment(V(-63.4, 32.8, 0), V(-61.8, 30, 0)), False)
sketch10.addGeometry(Part.LineSegment(V(61.8, -20, 0), V(63.4, -17.2, 0)), False)
sketch10.addGeometry(Part.LineSegment(V(63.4, -17.2, 0), V(66.6, -17.2, 0)), False)
sketch10.addGeometry(Part.LineSegment(V(66.6, -17.2, 0), V(68.2, -20, 0)), False)
sketch10.addGeometry(Part.LineSegment(V(68.2, -20, 0), V(66.6, -22.8, 0)), False)
sketch10.addGeometry(Part.LineSegment(V(66.6, -22.8, 0), V(63.4, -22.8, 0)), False)
sketch10.addGeometry(Part.LineSegment(V(63.4, -22.8, 0), V(61.8, -20, 0)), False)
sketch10.addGeometry(Part.LineSegment(V(-61.8, -20, 0), V(-63.4, -22.8, 0)), False)
sketch10.addGeometry(Part.LineSegment(V(-63.4, -22.8, 0), V(-66.6, -22.8, 0)), False)
sketch10.addGeometry(Part.LineSegment(V(-66.6, -22.8, 0), V(-68.2, -20, 0)), False)
sketch10.addGeometry(Part.LineSegment(V(-68.2, -20, 0), V(-66.6, -17.2, 0)), False)
sketch10.addGeometry(Part.LineSegment(V(-66.6, -17.2, 0), V(-63.4, -17.2, 0)), False)
sketch10.addGeometry(Part.LineSegment(V(-63.4, -17.2, 0), V(-61.8, -20, 0)), False)
sketch10.addConstraint(Sketcher.Constraint("Coincident", 0, 2, 1, 1))
sketch10.addConstraint(Sketcher.Constraint("Coincident", 1, 2, 2, 1))
sketch10.addConstraint(Sketcher.Constraint("Coincident", 2, 2, 3, 1))
sketch10.addConstraint(Sketcher.Constraint("Coincident", 3, 2, 4, 1))
sketch10.addConstraint(Sketcher.Constraint("Coincident", 4, 2, 5, 1))
sketch10.addConstraint(Sketcher.Constraint("Coincident", 5, 2, 0, 1))
sketch10.addConstraint(Sketcher.Constraint("Coincident", 6, 2, 7, 1))
sketch10.addConstraint(Sketcher.Constraint("Coincident", 7, 2, 8, 1))
sketch10.addConstraint(Sketcher.Constraint("Coincident", 8, 2, 9, 1))
sketch10.addConstraint(Sketcher.Constraint("Coincident", 9, 2, 10, 1))
sketch10.addConstraint(Sketcher.Constraint("Coincident", 10, 2, 11, 1))
sketch10.addConstraint(Sketcher.Constraint("Coincident", 11, 2, 6, 1))
sketch10.addConstraint(Sketcher.Constraint("Coincident", 12, 2, 13, 1))
sketch10.addConstraint(Sketcher.Constraint("Coincident", 13, 2, 14, 1))
sketch10.addConstraint(Sketcher.Constraint("Coincident", 14, 2, 15, 1))
sketch10.addConstraint(Sketcher.Constraint("Coincident", 15, 2, 16, 1))
sketch10.addConstraint(Sketcher.Constraint("Coincident", 16, 2, 17, 1))
sketch10.addConstraint(Sketcher.Constraint("Coincident", 17, 2, 12, 1))
sketch10.addConstraint(Sketcher.Constraint("Coincident", 18, 2, 19, 1))
sketch10.addConstraint(Sketcher.Constraint("Coincident", 19, 2, 20, 1))
sketch10.addConstraint(Sketcher.Constraint("Coincident", 20, 2, 21, 1))
sketch10.addConstraint(Sketcher.Constraint("Coincident", 21, 2, 22, 1))
sketch10.addConstraint(Sketcher.Constraint("Coincident", 22, 2, 23, 1))
sketch10.addConstraint(Sketcher.Constraint("Coincident", 23, 2, 18, 1))
sketch10.addConstraint(Sketcher.Constraint("Horizontal", 1))
sketch10.addConstraint(Sketcher.Constraint("Horizontal", 4))
sketch10.addConstraint(Sketcher.Constraint("Horizontal", 7))
sketch10.addConstraint(Sketcher.Constraint("Horizontal", 10))
sketch10.addConstraint(Sketcher.Constraint("Horizontal", 13))
sketch10.addConstraint(Sketcher.Constraint("Horizontal", 16))
sketch10.addConstraint(Sketcher.Constraint("Horizontal", 19))
sketch10.addConstraint(Sketcher.Constraint("Horizontal", 22))
sketch10.addConstraint(Sketcher.Constraint("Symmetric", 4, 2, 6, 2, -2))
sketch10.addConstraint(Sketcher.Constraint("Symmetric", 2, 2, 8, 2, -2))
sketch10.addConstraint(Sketcher.Constraint("Symmetric", 1, 2, 9, 2, -2))
sketch10.addConstraint(Sketcher.Constraint("Symmetric", 5, 2, 11, 2, -2))
sketch10.addConstraint(Sketcher.Constraint("Symmetric", 16, 2, 18, 2, -2))
sketch10.addConstraint(Sketcher.Constraint("Symmetric", 14, 2, 20, 2, -2))
sketch10.addConstraint(Sketcher.Constraint("Symmetric", 13, 2, 21, 2, -2))
sketch10.addConstraint(Sketcher.Constraint("Symmetric", 17, 2, 23, 2, -2))
sketch10.addConstraint(Sketcher.Constraint("Parallel", 0, 3))
sketch10.addConstraint(Sketcher.Constraint("Parallel", 2, 5))
sketch10.addConstraint(Sketcher.Constraint("Parallel", 3, 6))
sketch10.addConstraint(Sketcher.Constraint("Parallel", 5, 8))
sketch10.addConstraint(Sketcher.Constraint("Parallel", 8, 11))
sketch10.addConstraint(Sketcher.Constraint("Parallel", 9, 12))
sketch10.addConstraint(Sketcher.Constraint("Parallel", 11, 14))
sketch10.addConstraint(Sketcher.Constraint("Parallel", 12, 15))
sketch10.addConstraint(Sketcher.Constraint("Parallel", 14, 17))
sketch10.addConstraint(Sketcher.Constraint("Parallel", 17, 20))
sketch10.addConstraint(Sketcher.Constraint("Parallel", 20, 23))
sketch10.addConstraint(Sketcher.Constraint("Horizontal", 2, 2, 5, 2))
sketch10.addConstraint(Sketcher.Constraint("Horizontal", 14, 2, 17, 2))
sketch10.addConstraint(Sketcher.Constraint("Vertical", 1, 2, 3, 2))
sketch10.addConstraint(Sketcher.Constraint("Vertical", 4, 2, 12, 2))
sketch10.addConstraint(Sketcher.Constraint("Vertical", 3, 2, 13, 2))
sketch10.addConstraint(Sketcher.Constraint("Vertical", 2, 2, 14, 2))
sketch10.addConstraint(Sketcher.Constraint("Vertical", 13, 2, 15, 2))
sketch10.addConstraint(Sketcher.Constraint("Angle", 0, Q("60 deg")))
sketch10.addConstraint(Sketcher.Constraint("DistanceY", -1, 1, 2, 2, 30.0))
sketch10.addConstraint(Sketcher.Constraint("DistanceY", 14, 2, -1, 1, 20.0))
sketch10.addConstraint(Sketcher.Constraint("DistanceX", 6, 2, 3, 2, 130.0))
sketch10.addConstraint(Sketcher.Constraint("DistanceY", 3, 2, 1, 2, 5.5))
sketch10.addConstraint(Sketcher.Constraint("DistanceX", 1, 1, 1, 2, 3.175426))
pocket6 = body.newObject("PartDesign::Pocket", "Pocket005")
pocket6.Profile = sketch10
pocket6.Length = 3
pocket6.Reversed = True

# Sketch on XZ plane
sketch11 = body.newObject("Sketcher::SketchObject", "Sketch010")
sketch11.AttachmentSupport = (doc.getObject("XZ_Plane"), [""])
sketch11.MapMode = "FlatFace"
sketch11.AttachmentOffset = App.Placement(V(0, 0, -37), App.Rotation())
sketch11.addGeometry(Part.Circle(V(29, 25, 0), V(0, 0, 1), 16), False)
sketch11.addGeometry(Part.Circle(V(29, 25, 0), V(0, 0, 1), 10), False)
sketch11.addConstraint(Sketcher.Constraint("Coincident", 1, 3, 0, 3))
sketch11.addConstraint(Sketcher.Constraint("Diameter", 1, 20.0))
sketch11.addConstraint(Sketcher.Constraint("DistanceX", -1, 1, 0, 3, 29.0))
sketch11.addConstraint(Sketcher.Constraint("DistanceY", -1, 1, 0, 3, 25.0))
sketch11.addConstraint(Sketcher.Constraint("Diameter", 0, 31.622777))
pad5 = body.newObject("PartDesign::Pad", "Pad004")
pad5.Profile = sketch11
pad5.Length = 2

# Sketch on XZ plane
sketch12 = body.newObject("Sketcher::SketchObject", "Sketch011")
sketch12.AttachmentSupport = (doc.getObject("XZ_Plane"), [""])
sketch12.MapMode = "FlatFace"
sketch12.AttachmentOffset = App.Placement(V(0, 0, -37), App.Rotation())
sketch12.addGeometry(Part.Circle(V(29, 25, 0), V(0, 0, 1), 10), False)
sketch12.addConstraint(Sketcher.Constraint("Diameter", 0, 20.0))
sketch12.addConstraint(Sketcher.Constraint("DistanceX", -1, 1, 0, 3, 29.0))
sketch12.addConstraint(Sketcher.Constraint("DistanceY", -1, 1, 0, 3, 25.0))
pocket7 = body.newObject("PartDesign::Pocket", "Pocket006")
pocket7.Profile = sketch12
pocket7.Length = 10
pocket7.Reversed = True

# Sketch on XZ plane
sketch13 = body.newObject("Sketcher::SketchObject", "Sketch012")
sketch13.AttachmentSupport = (doc.getObject("XZ_Plane"), [""])
sketch13.MapMode = "FlatFace"
sketch13.AttachmentOffset = App.Placement(V(0, 0, -37), App.Rotation())
sketch13.addGeometry(Part.Circle(V(-16, 31, 0), V(0, 0, 1), 22.5), False)
sketch13.addGeometry(Part.Circle(V(-41, 56, 0), V(0, 0, 1), 1.6), False)
sketch13.addGeometry(Part.Circle(V(9, 56, 0), V(0, 0, 1), 1.6), False)
sketch13.addGeometry(Part.Circle(V(-41, 6, 0), V(0, 0, 1), 1.6), False)
sketch13.addGeometry(Part.Circle(V(9, 6, 0), V(0, 0, 1), 1.6), False)
sketch13.addConstraint(Sketcher.Constraint("Equal", 1, 2))
sketch13.addConstraint(Sketcher.Constraint("Equal", 2, 3))
sketch13.addConstraint(Sketcher.Constraint("Equal", 3, 4))
sketch13.addConstraint(Sketcher.Constraint("Horizontal", 1, 3, 2, 3))
sketch13.addConstraint(Sketcher.Constraint("Horizontal", 3, 3, 4, 3))
sketch13.addConstraint(Sketcher.Constraint("Vertical", 1, 3, 3, 3))
sketch13.addConstraint(Sketcher.Constraint("Vertical", 2, 3, 4, 3))
sketch13.addConstraint(Sketcher.Constraint("Diameter", 0, 45.0))
sketch13.addConstraint(Sketcher.Constraint("Diameter", 1, 3.2))
sketch13.addConstraint(Sketcher.Constraint("DistanceX", 0, 3, -1, 1, 16.0))
sketch13.addConstraint(Sketcher.Constraint("DistanceY", -1, 1, 0, 3, 31.0))
sketch13.addConstraint(Sketcher.Constraint("DistanceX", 1, 3, -1, 1, 41.0))
sketch13.addConstraint(Sketcher.Constraint("DistanceY", -1, 1, 1, 3, 56.0))
sketch13.addConstraint(Sketcher.Constraint("DistanceX", -1, 1, 2, 3, 9.0))
sketch13.addConstraint(Sketcher.Constraint("DistanceY", -1, 1, 3, 3, 6.0))
pocket8 = body.newObject("PartDesign::Pocket", "Pocket007")
pocket8.Profile = sketch13
pocket8.Length = 10
pocket8.Reversed = True

# Sketch on XZ plane
sketch14 = body.newObject("Sketcher::SketchObject", "Sketch013")
sketch14.AttachmentSupport = (doc.getObject("XZ_Plane"), [""])
sketch14.MapMode = "FlatFace"
sketch14.AttachmentOffset = App.Placement(V(0, 0, -37), App.Rotation())
sketch14.addGeometry(Part.Circle(V(-16, 31, 0), V(0, 0, 1), 28), False)
sketch14.addGeometry(Part.Circle(V(-16, 31, 0), V(0, 0, 1), 22), False)
sketch14.addConstraint(Sketcher.Constraint("Coincident", 1, 3, 0, 3))
sketch14.addConstraint(Sketcher.Constraint("Diameter", 0, 55.0))
sketch14.addConstraint(Sketcher.Constraint("Diameter", 1, 45.0))
sketch14.addConstraint(Sketcher.Constraint("DistanceX", 0, 3, -1, 1, 16.0))
sketch14.addConstraint(Sketcher.Constraint("DistanceY", -1, 1, 0, 3, 31.0))
pad6 = body.newObject("PartDesign::Pad", "Pad005")
pad6.Profile = sketch14
pad6.Length = 2

doc.recompute()
